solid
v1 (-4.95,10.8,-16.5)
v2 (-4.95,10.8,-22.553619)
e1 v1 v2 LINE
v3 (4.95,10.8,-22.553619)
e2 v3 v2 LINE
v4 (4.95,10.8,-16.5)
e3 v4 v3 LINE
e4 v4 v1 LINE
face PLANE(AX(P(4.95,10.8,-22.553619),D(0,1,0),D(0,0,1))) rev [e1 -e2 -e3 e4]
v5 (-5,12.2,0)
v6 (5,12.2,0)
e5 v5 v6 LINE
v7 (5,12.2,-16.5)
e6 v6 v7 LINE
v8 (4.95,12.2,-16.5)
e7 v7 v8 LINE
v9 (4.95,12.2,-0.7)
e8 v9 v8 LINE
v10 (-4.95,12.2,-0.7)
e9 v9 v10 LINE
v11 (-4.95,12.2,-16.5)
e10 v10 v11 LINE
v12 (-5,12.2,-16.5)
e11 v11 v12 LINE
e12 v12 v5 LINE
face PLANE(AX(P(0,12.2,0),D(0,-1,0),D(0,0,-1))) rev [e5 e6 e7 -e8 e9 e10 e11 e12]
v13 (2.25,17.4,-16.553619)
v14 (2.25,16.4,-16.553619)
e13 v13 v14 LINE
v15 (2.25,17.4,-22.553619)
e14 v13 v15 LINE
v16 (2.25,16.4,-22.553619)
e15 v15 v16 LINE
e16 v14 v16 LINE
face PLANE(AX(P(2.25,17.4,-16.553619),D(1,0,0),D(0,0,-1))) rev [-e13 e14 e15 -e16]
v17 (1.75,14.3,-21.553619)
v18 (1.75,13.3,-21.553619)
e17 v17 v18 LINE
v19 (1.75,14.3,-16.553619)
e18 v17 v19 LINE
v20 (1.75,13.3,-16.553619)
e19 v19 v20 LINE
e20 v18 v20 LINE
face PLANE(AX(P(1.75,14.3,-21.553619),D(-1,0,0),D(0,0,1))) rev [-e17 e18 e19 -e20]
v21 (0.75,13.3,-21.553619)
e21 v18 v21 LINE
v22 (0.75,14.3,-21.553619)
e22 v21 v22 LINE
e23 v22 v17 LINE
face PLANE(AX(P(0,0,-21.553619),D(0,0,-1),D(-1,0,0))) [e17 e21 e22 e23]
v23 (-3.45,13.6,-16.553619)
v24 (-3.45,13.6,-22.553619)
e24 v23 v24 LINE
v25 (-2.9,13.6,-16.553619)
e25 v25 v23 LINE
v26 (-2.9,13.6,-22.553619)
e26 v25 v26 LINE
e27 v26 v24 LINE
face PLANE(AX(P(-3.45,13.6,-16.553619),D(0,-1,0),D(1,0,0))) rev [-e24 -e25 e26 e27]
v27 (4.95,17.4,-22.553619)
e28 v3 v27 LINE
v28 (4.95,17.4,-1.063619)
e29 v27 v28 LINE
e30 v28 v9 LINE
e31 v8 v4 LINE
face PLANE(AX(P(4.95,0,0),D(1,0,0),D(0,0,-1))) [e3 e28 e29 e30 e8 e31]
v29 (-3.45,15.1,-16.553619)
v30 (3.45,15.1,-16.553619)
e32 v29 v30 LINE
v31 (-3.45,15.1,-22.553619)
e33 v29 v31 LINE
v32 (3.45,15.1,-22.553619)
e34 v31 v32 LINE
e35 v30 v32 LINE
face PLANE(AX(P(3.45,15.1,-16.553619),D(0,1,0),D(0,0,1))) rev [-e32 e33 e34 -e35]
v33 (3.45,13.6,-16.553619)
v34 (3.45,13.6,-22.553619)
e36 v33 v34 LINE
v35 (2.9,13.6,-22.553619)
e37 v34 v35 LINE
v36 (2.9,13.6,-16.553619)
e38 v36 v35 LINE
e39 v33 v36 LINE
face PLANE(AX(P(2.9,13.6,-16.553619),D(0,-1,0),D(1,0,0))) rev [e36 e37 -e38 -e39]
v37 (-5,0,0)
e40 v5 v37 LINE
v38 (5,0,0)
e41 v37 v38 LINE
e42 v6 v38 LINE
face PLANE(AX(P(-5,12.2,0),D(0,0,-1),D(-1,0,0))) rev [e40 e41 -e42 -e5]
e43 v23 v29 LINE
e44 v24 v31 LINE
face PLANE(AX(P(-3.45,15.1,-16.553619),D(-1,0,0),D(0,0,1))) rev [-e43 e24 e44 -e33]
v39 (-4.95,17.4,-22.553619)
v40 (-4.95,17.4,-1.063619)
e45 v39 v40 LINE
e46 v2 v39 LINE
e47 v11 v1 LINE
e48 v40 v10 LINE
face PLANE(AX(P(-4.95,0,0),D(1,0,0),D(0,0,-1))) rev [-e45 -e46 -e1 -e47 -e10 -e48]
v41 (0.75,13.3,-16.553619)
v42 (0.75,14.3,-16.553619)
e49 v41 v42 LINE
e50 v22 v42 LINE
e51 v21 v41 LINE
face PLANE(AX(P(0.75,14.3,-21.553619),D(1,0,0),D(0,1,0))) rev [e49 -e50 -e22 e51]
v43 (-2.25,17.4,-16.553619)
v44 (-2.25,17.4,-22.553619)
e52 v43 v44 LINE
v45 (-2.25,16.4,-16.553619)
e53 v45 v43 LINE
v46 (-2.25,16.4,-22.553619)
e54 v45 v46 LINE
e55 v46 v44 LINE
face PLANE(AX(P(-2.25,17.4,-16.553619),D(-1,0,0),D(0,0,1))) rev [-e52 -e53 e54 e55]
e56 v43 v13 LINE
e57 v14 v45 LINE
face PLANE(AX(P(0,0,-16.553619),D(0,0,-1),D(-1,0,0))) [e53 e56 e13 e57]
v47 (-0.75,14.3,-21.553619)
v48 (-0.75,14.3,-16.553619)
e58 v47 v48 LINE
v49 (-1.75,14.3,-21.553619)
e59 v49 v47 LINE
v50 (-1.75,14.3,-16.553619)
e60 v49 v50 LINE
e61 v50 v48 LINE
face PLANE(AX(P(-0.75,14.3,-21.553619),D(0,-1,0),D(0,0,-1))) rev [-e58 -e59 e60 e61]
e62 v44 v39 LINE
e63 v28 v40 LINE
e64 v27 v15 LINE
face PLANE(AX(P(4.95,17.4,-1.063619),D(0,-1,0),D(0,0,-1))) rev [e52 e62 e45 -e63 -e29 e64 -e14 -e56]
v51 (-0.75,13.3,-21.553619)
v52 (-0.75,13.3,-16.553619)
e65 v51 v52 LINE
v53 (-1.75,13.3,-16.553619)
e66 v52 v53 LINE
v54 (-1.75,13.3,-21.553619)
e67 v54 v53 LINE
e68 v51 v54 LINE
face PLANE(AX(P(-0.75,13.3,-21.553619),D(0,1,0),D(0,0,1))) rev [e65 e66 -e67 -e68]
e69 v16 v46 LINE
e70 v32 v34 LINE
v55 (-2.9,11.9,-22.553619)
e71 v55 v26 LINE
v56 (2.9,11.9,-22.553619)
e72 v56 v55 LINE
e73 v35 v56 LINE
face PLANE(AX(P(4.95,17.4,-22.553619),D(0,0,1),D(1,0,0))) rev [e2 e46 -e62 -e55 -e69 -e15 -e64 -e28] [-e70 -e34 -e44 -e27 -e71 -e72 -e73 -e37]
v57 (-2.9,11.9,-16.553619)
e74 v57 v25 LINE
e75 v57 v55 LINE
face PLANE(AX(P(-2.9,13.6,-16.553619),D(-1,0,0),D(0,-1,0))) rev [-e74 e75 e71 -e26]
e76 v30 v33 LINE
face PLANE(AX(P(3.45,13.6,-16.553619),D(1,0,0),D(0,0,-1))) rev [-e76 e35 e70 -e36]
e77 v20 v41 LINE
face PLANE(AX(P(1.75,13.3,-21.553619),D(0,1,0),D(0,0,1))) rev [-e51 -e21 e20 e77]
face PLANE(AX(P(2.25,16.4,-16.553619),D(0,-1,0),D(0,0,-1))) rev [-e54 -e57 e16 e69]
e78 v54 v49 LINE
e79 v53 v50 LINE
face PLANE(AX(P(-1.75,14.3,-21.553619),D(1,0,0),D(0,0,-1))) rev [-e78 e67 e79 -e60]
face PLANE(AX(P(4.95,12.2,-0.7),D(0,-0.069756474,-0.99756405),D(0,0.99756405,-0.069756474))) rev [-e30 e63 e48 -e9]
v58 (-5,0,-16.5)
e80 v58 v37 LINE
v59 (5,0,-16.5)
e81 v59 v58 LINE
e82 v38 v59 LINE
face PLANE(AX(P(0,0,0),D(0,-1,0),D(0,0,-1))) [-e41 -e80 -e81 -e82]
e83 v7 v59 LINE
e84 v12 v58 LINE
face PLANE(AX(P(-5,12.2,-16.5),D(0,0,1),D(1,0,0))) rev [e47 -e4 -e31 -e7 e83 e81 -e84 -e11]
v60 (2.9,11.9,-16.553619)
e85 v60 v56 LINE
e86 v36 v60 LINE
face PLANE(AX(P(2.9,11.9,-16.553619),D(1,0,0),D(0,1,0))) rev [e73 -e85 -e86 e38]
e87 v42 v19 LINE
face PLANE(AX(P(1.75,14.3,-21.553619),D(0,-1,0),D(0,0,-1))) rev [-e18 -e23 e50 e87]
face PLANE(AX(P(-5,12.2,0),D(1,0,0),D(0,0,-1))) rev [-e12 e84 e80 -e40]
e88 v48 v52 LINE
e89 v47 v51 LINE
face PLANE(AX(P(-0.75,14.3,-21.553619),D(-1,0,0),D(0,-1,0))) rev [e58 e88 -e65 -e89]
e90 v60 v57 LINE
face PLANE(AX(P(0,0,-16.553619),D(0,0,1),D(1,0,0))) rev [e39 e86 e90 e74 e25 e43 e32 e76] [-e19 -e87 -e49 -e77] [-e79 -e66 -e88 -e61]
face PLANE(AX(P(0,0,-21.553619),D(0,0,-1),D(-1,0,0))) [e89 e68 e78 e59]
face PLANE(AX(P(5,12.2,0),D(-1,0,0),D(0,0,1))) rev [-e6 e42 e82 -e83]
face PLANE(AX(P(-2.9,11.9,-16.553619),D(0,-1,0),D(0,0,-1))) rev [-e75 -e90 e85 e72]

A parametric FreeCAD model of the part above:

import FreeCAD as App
import Part
import Sketcher
from FreeCAD import Vector
Q = App.Units.Quantity


def add_polygon(sketch, points):
    """Adds a closed chain of lines whose ends are joined by coincident constraints."""
    first, n = sketch.GeometryCount, len(points)
    for a, b in zip(points, points[1:] + points[:1]):
        sketch.addGeometry(Part.LineSegment(App.Vector(*a, 0), App.Vector(*b, 0)), False)
    for i in range(n):
        sketch.addConstraint(Sketcher.Constraint("Coincident", first + i, 2, first + (i + 1) % n, 1))

doc = App.newDocument("Part")
body = doc.addObject("PartDesign::Body", "Body")

sketch1 = body.newObject("Sketcher::SketchObject", "Sketch")
sketch1.AttachmentSupport = (doc.getObject("XZ_Plane"), [""])
sketch1.MapMode = "FlatFace"
add_polygon(sketch1, [(-5, -16), (-5, 0), (5, 0), (5, -16)])
sketch1.addConstraint([
    Sketcher.Constraint("Vertical", 0),
    Sketcher.Constraint("Horizontal", 1),
    Sketcher.Constraint("Vertical", 2),
    Sketcher.Constraint("Horizontal", 3),
    Sketcher.Constraint("Symmetric", 0, 2, 1, 2, -1, 1),
    Sketcher.Constraint("DistanceX", 1, 1, 1, 2, Q("10 mm")),
    Sketcher.Constraint("DistanceY", 0, 1, 0, 2, Q("16.5 mm")),
])
pad1 = body.newObject("PartDesign::Pad", "Pad")
pad1.Profile = sketch1
pad1.Length = 12.2
pad1.Reversed = True

sketch2 = body.newObject("Sketcher::SketchObject", "Sketch001")
sketch2.AttachmentSupport = (doc.getObject("YZ_Plane"), [""])
sketch2.MapMode = "FlatFace"
add_polygon(sketch2, [(17.4, -1.1), (12.2, -0.7), (12.2, -16.5), (10.8, -16.5), (10.8, -22.6), (17.4, -22.6)])
sketch2.addConstraint([
    Sketcher.Constraint("Vertical", 1),
    Sketcher.Constraint("Horizontal", 2),
    Sketcher.Constraint("Vertical", 3),
    Sketcher.Constraint("Horizontal", 4),
    Sketcher.Constraint("Vertical", 5),
    Sketcher.Constraint("Angle", 0, Q("176 deg")),
    Sketcher.Constraint("DistanceX", 2, 2, 2, 1, Q("1.4 mm")),
    Sketcher.Constraint("DistanceX", 4, 1, 4, 2, Q("6.6 mm")),
    Sketcher.Constraint("DistanceY", 1, 2, 1, 1, Q("15.8 mm")),
    Sketcher.Constraint("DistanceY", 5, 1, 5, 2, Q("21.49 mm")),
    Sketcher.Constraint("DistanceX", -1, 1, 0, 2, Q("12.2 mm")),
    Sketcher.Constraint("DistanceY", 0, 2, -1, 1, Q("0.7 mm")),
])
pad2 = body.newObject("PartDesign::Pad", "Pad001")
pad2.Profile = sketch2
pad2.Length = 9.9
pad2.Midplane = True

sketch3 = body.newObject("Sketcher::SketchObject", "Sketch002")
sketch3.AttachmentSupport = (doc.getObject("XY_Plane"), [""])
sketch3.MapMode = "FlatFace"
sketch3.AttachmentOffset = App.Placement(Vector(0, 0, -22.553619), App.Rotation())
add_polygon(sketch3, [(2.2, 17.4), (2.2, 16.4), (-2.2, 16.4), (-2.2, 17.4)])
add_polygon(sketch3, [(-3.5, 15.1), (3.5, 15.1), (3.5, 13.6), (2.9, 13.6), (2.9, 11.9), (-2.9, 11.9), (-2.9, 13.6), (-3.5, 13.6)])
sketch3.addConstraint([
    Sketcher.Constraint("Vertical", 0),
    Sketcher.Constraint("Horizontal", 1),
    Sketcher.Constraint("Vertical", 2),
    Sketcher.Constraint("Horizontal", 3),
    Sketcher.Constraint("Horizontal", 4),
    Sketcher.Constraint("Vertical", 5),
    Sketcher.Constraint("Horizontal", 6),
    Sketcher.Constraint("Vertical", 7),
    Sketcher.Constraint("Horizontal", 8),
    Sketcher.Constraint("Vertical", 9),
    Sketcher.Constraint("Horizontal", 10),
    Sketcher.Constraint("Vertical", 11),
    Sketcher.Constraint("Symmetric", 6, 2, 9, 2, -2),
    Sketcher.Constraint("Equal", 6, 10),
    Sketcher.Constraint("DistanceY", 0, 2, 0, 1, Q("1 mm")),
    Sketcher.Constraint("DistanceX", 1, 2, 1, 1, Q("4.5 mm")),
    Sketcher.Constraint("DistanceX", 4, 1, 4, 2, Q("6.9 mm")),
    Sketcher.Constraint("DistanceX", 8, 2, 8, 1, Q("5.8 mm")),
    Sketcher.Constraint("DistanceY", 5, 2, 5, 1, Q("1.5 mm")),
    Sketcher.Constraint("DistanceY", 7, 2, 7, 1, Q("1.7 mm")),
    Sketcher.Constraint("DistanceY", -1, 1, 0, 2, Q("16.4 mm")),
    Sketcher.Constraint("DistanceY", -1, 1, 4, 2, Q("15.1 mm")),
    Sketcher.Constraint("DistanceX", 0, 2, 4, 2, Q("1.2 mm")),
])
pocket1 = body.newObject("PartDesign::Pocket", "Pocket")
pocket1.Profile = sketch3
pocket1.Length = 6
pocket1.Reversed = True

sketch4 = body.newObject("Sketcher::SketchObject", "Sketch003")
sketch4.AttachmentSupport = (doc.getObject("XY_Plane"), [""])
sketch4.MapMode = "FlatFace"
sketch4.AttachmentOffset = App.Placement(Vector(0, 0, -16.553619), App.Rotation())
add_polygon(sketch4, [(1.8, 14.3), (1.8, 13.3), (0.8, 13.3), (0.8, 14.3)])
add_polygon(sketch4, [(-0.8, 14.3), (-0.8, 13.3), (-1.8, 13.3), (-1.8, 14.3)])
sketch4.addConstraint([
    Sketcher.Constraint("Vertical", 0),
    Sketcher.Constraint("Horizontal", 1),
    Sketcher.Constraint("Vertical", 2),
    Sketcher.Constraint("Horizontal", 3),
    Sketcher.Constraint("Vertical", 4),
    Sketcher.Constraint("Horizontal", 5),
    Sketcher.Constraint("Vertical", 6),
    Sketcher.Constraint("Horizontal", 7),
    Sketcher.Constraint("Symmetric", 1, 2, 4, 2, -2),
    Sketcher.Constraint("Symmetric", 3, 2, 6, 2, -2),
    Sketcher.Constraint("Equal", 7, 0),
    Sketcher.Constraint("DistanceX", 1, 2, 1, 1, Q("1 mm")),
    Sketcher.Constraint("DistanceY", -1, 1, 0, 2, Q("13.3 mm")),
    Sketcher.Constraint("DistanceX", 4, 2, 1, 2, Q("1.5 mm")),
])
pad3 = body.newObject("PartDesign::Pad", "Pad002")
pad3.Profile = sketch4
pad3.Length = 5
pad3.Reversed = True

doc.recompute()
